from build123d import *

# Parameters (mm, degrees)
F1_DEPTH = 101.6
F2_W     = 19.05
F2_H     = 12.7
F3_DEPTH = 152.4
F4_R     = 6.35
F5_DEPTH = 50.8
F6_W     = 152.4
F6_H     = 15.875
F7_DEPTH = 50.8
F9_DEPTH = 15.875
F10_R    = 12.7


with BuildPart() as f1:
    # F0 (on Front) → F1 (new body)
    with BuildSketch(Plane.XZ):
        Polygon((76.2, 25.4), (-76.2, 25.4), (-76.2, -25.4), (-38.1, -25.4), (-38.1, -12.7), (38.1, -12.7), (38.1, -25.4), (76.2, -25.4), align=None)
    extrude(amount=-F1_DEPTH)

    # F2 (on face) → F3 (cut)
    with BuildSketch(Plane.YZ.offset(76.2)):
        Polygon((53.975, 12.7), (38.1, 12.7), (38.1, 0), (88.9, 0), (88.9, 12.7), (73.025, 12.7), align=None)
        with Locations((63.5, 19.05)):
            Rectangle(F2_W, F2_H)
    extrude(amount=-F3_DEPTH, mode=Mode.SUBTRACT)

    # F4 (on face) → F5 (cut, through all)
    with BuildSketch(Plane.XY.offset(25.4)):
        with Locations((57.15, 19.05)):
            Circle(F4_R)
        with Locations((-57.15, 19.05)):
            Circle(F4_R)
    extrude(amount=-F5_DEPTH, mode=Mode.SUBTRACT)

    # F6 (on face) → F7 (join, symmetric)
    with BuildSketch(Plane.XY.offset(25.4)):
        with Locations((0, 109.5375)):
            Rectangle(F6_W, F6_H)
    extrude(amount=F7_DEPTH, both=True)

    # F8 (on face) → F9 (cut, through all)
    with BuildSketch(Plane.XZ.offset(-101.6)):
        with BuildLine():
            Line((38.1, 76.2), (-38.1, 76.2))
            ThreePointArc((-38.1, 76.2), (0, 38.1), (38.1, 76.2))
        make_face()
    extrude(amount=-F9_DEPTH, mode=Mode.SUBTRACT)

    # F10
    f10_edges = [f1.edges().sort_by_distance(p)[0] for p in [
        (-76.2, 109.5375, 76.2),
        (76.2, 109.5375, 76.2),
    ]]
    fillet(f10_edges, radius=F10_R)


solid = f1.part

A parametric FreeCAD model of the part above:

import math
import FreeCAD as App
import Part
import Sketcher
Q = App.Units.Quantity


def edges_at(feature, points):
    """Names of the edges that pass closest to the given points."""
    edges = feature.Shape.Edges
    near = lambda p: min(range(len(edges)), key=lambda i: edges[i].distToShape(Part.Vertex(*p))[0])
    return sorted({f"Edge{near(p) + 1}" for p in points})


def add_polygon(sketch, points):
    """Adds a closed chain of lines whose ends are joined by coincident constraints."""
    first, n = sketch.GeometryCount, len(points)
    for a, b in zip(points, points[1:] + points[:1]):
        sketch.addGeometry(Part.LineSegment(App.Vector(*a, 0), App.Vector(*b, 0)), False)
    for i in range(n):
        sketch.addConstraint(Sketcher.Constraint("Coincident", first + i, 2, first + (i + 1) % n, 1))

doc = App.newDocument("Part")
params = doc.addObject("Spreadsheet::Sheet", "Params")
for row, (alias, value) in enumerate([
    ("sketch1_width", "6 in"),
    ("sketch1_width2", "3 in"),
    ("sketch1_height", "2 in"),
    ("sketch1_height2", "0.5 in"),
    ("pad1_length", "4 in"),
    ("sketch2_width", "2 in"),
    ("sketch2_height", "0.5 in"),
    ("sketch2_width2", "0.75 in"),
    ("pocket1_length", "6 in"),
    ("sketch3_diameter", "0.5 in"),
    ("sketch4_width", "6 in"),
    ("sketch4_height", "0.625 in"),
    ("pad2_length", "4 in"),
    ("sketch5_radius", "1.5 in"),
    ("fillet_radius", "0.5 in"),
], start=1):
    params.set(f"A{row}", alias)
    params.set(f"B{row}", "=" + value)
    params.setAlias(f"B{row}", alias)

body = doc.addObject("PartDesign::Body", "Body")

# Sketch on XZ plane
sketch1 = body.newObject("Sketcher::SketchObject", "Sketch")
sketch1.AttachmentSupport = (doc.getObject("XZ_Plane"), [""])
sketch1.MapMode = "FlatFace"
add_polygon(sketch1, [(76, 25), (-76, 25), (-76, -25), (-38, -25), (-38, -13), (38, -13), (38, -25), (76, -25)])  # lines 0-7
sketch1.addConstraint([
    Sketcher.Constraint("Horizontal", 0),
    Sketcher.Constraint("Vertical", 1),
    Sketcher.Constraint("Horizontal", 2),
    Sketcher.Constraint("Vertical", 3),
    Sketcher.Constraint("Horizontal", 4),
    Sketcher.Constraint("Vertical", 5),
    Sketcher.Constraint("Horizontal", 6),
    Sketcher.Constraint("Vertical", 7),
    Sketcher.Constraint("Symmetric", 0, 2, 6, 2, -1, 1),
    Sketcher.Constraint("Symmetric", 2, 2, 5, 2, -2),
    Sketcher.Constraint("DistanceX", 0, 2, 0, 1, Q("6 in")),
    Sketcher.Constraint("DistanceX", 4, 1, 4, 2, Q("3 in")),
    Sketcher.Constraint("DistanceY", 1, 2, 1, 1, Q("2 in")),
    Sketcher.Constraint("DistanceY", 3, 1, 3, 2, Q("0.5 in")),
])
sketch1.setExpression("Constraints[18]", "Params.sketch1_width")
sketch1.setExpression("Constraints[19]", "Params.sketch1_width2")
sketch1.setExpression("Constraints[20]", "Params.sketch1_height")
sketch1.setExpression("Constraints[21]", "Params.sketch1_height2")
pad1 = body.newObject("PartDesign::Pad", "Pad")
pad1.Profile = sketch1
pad1.setExpression("Length", "Params.pad1_length")
pad1.Reversed = True

# Sketch on YZ plane
sketch2 = body.newObject("Sketcher::SketchObject", "Sketch001")
sketch2.AttachmentSupport = (doc.getObject("YZ_Plane"), [""])
sketch2.MapMode = "FlatFace"
sketch2.AttachmentOffset = App.Placement(App.Vector(0, 0, 3 * 25.4), App.Rotation())
add_polygon(sketch2, [(38, 13), (38, 0), (89, 0), (89, 13), (73, 13), (73, 25), (54, 25), (54, 13)])  # lines 0-7
sketch2.addConstraint([
    Sketcher.Constraint("Vertical", 0),
    Sketcher.Constraint("Horizontal", 1),
    Sketcher.Constraint("Vertical", 2),
    Sketcher.Constraint("Horizontal", 3),
    Sketcher.Constraint("Vertical", 4),
    Sketcher.Constraint("Horizontal", 5),
    Sketcher.Constraint("Vertical", 6),
    Sketcher.Constraint("Horizontal", 7),
    Sketcher.Constraint("PointOnObject", 0, 2, -1),
    Sketcher.Constraint("Horizontal", 3, 2, 6, 2),
    Sketcher.Constraint("Equal", 3, 7),
    Sketcher.Constraint("Equal", 2, 4),
    Sketcher.Constraint("DistanceX", 1, 1, 1, 2, Q("2 in")),
    Sketcher.Constraint("DistanceY", 0, 2, 0, 1, Q("0.5 in")),
    Sketcher.Constraint("DistanceX", 5, 2, 5, 1, Q("0.75 in")),
    Sketcher.Constraint("DistanceX", -1, 1, 0, 2, Q("1.5 in")),
])
sketch2.setExpression("Constraints[20]", "Params.sketch2_width")
sketch2.setExpression("Constraints[21]", "Params.sketch2_height")
sketch2.setExpression("Constraints[22]", "Params.sketch2_width2")
pocket1 = body.newObject("PartDesign::Pocket", "Pocket")
pocket1.Profile = sketch2
pocket1.setExpression("Length", "Params.pocket1_length")

# Sketch on XY plane
sketch3 = body.newObject("Sketcher::SketchObject", "Sketch002")
sketch3.AttachmentSupport = (doc.getObject("XY_Plane"), [""])
sketch3.MapMode = "FlatFace"
sketch3.AttachmentOffset = App.Placement(App.Vector(0, 0, 1 * 25.4), App.Rotation())
sketch3.addGeometry([
    Part.Circle(App.Vector(57, 19, 0), App.Vector(0, 0, 1), 6),
    Part.Circle(App.Vector(-57, 19, 0), App.Vector(0, 0, 1), 6),
], False)
sketch3.addConstraint([
    Sketcher.Constraint("Equal", 0, 1),
    Sketcher.Constraint("Symmetric", 0, 3, 1, 3, -2),
    Sketcher.Constraint("Diameter", 0, Q("0.5 in")),
    Sketcher.Constraint("DistanceX", 1, 3, 0, 3, Q("4.5 in")),
    Sketcher.Constraint("DistanceY", -1, 1, 0, 3, Q("0.75 in")),
])
sketch3.setExpression("Constraints[2]", "Params.sketch3_diameter")
pocket2 = body.newObject("PartDesign::Pocket", "Pocket001")
pocket2.Profile = sketch3
pocket2.Type = "ThroughAll"

# Sketch on XY plane
sketch4 = body.newObject("Sketcher::SketchObject", "Sketch003")
sketch4.AttachmentSupport = (doc.getObject("XY_Plane"), [""])
sketch4.MapMode = "FlatFace"
sketch4.AttachmentOffset = App.Placement(App.Vector(0, 0, 1 * 25.4), App.Rotation())
add_polygon(sketch4, [(-76, 117), (-76, 102), (76, 102), (76, 117)])  # lines 0-3
sketch4.addConstraint([
    Sketcher.Constraint("Vertical", 0),
    Sketcher.Constraint("Horizontal", 1),
    Sketcher.Constraint("Vertical", 2),
    Sketcher.Constraint("Horizontal", 3),
    Sketcher.Constraint("DistanceX", 1, 1, 1, 2, Q("6 in")),
    Sketcher.Constraint("DistanceX", 0, 2, -1, 1, Q("3 in")),
    Sketcher.Constraint("DistanceY", -1, 1, 0, 2, Q("4 in")),
    Sketcher.Constraint("DistanceY", 0, 2, 0, 1, Q("0.625 in")),
])
sketch4.setExpression("Constraints[8]", "Params.sketch4_width")
sketch4.setExpression("Constraints[11]", "Params.sketch4_height")
pad2 = body.newObject("PartDesign::Pad", "Pad001")
pad2.Profile = sketch4
pad2.setExpression("Length", "Params.pad2_length")
pad2.Midplane = True

# Sketch on XZ plane
sketch5 = body.newObject("Sketcher::SketchObject", "Sketch004")
sketch5.AttachmentSupport = (doc.getObject("XZ_Plane"), [""])
sketch5.MapMode = "FlatFace"
sketch5.AttachmentOffset = App.Placement(App.Vector(0, 0, -4 * 25.4), App.Rotation())
sketch5.addGeometry([
    Part.LineSegment(App.Vector(38, 76, 0), App.Vector(-38, 76, 0)),
    Part.ArcOfCircle(Part.Circle(App.Vector(0, 76, 0), App.Vector(0, 0, 1), 38), math.radians(180), math.radians(360)),
], False)
sketch5.addConstraint([
    Sketcher.Constraint("Coincident", 0, 1, 1, 2),
    Sketcher.Constraint("Coincident", 1, 1, 0, 2),
    Sketcher.Constraint("Horizontal", 0),
    Sketcher.Constraint("PointOnObject", 1, 3, -2),
    Sketcher.Constraint("Horizontal", 1, 3, 0, 1),
    Sketcher.Constraint("Radius", 1, Q("1.5 in")),
    Sketcher.Constraint("DistanceY", -1, 1, 1, 3, Q("3 in")),
])
sketch5.setExpression("Constraints[5]", "Params.sketch5_radius")
pocket3 = body.newObject("PartDesign::Pocket", "Pocket002")
pocket3.Profile = sketch5
pocket3.Type = "ThroughAll"
doc.recompute()

fillet = body.newObject("PartDesign::Fillet", "Fillet")
fillet.Base = (pocket3, edges_at(pocket3, [(-76.2, 109.537, 76.2), (76.2, 109.537, 76.2)]))
fillet.setExpression("Radius", "Params.fillet_radius")

doc.recompute()
